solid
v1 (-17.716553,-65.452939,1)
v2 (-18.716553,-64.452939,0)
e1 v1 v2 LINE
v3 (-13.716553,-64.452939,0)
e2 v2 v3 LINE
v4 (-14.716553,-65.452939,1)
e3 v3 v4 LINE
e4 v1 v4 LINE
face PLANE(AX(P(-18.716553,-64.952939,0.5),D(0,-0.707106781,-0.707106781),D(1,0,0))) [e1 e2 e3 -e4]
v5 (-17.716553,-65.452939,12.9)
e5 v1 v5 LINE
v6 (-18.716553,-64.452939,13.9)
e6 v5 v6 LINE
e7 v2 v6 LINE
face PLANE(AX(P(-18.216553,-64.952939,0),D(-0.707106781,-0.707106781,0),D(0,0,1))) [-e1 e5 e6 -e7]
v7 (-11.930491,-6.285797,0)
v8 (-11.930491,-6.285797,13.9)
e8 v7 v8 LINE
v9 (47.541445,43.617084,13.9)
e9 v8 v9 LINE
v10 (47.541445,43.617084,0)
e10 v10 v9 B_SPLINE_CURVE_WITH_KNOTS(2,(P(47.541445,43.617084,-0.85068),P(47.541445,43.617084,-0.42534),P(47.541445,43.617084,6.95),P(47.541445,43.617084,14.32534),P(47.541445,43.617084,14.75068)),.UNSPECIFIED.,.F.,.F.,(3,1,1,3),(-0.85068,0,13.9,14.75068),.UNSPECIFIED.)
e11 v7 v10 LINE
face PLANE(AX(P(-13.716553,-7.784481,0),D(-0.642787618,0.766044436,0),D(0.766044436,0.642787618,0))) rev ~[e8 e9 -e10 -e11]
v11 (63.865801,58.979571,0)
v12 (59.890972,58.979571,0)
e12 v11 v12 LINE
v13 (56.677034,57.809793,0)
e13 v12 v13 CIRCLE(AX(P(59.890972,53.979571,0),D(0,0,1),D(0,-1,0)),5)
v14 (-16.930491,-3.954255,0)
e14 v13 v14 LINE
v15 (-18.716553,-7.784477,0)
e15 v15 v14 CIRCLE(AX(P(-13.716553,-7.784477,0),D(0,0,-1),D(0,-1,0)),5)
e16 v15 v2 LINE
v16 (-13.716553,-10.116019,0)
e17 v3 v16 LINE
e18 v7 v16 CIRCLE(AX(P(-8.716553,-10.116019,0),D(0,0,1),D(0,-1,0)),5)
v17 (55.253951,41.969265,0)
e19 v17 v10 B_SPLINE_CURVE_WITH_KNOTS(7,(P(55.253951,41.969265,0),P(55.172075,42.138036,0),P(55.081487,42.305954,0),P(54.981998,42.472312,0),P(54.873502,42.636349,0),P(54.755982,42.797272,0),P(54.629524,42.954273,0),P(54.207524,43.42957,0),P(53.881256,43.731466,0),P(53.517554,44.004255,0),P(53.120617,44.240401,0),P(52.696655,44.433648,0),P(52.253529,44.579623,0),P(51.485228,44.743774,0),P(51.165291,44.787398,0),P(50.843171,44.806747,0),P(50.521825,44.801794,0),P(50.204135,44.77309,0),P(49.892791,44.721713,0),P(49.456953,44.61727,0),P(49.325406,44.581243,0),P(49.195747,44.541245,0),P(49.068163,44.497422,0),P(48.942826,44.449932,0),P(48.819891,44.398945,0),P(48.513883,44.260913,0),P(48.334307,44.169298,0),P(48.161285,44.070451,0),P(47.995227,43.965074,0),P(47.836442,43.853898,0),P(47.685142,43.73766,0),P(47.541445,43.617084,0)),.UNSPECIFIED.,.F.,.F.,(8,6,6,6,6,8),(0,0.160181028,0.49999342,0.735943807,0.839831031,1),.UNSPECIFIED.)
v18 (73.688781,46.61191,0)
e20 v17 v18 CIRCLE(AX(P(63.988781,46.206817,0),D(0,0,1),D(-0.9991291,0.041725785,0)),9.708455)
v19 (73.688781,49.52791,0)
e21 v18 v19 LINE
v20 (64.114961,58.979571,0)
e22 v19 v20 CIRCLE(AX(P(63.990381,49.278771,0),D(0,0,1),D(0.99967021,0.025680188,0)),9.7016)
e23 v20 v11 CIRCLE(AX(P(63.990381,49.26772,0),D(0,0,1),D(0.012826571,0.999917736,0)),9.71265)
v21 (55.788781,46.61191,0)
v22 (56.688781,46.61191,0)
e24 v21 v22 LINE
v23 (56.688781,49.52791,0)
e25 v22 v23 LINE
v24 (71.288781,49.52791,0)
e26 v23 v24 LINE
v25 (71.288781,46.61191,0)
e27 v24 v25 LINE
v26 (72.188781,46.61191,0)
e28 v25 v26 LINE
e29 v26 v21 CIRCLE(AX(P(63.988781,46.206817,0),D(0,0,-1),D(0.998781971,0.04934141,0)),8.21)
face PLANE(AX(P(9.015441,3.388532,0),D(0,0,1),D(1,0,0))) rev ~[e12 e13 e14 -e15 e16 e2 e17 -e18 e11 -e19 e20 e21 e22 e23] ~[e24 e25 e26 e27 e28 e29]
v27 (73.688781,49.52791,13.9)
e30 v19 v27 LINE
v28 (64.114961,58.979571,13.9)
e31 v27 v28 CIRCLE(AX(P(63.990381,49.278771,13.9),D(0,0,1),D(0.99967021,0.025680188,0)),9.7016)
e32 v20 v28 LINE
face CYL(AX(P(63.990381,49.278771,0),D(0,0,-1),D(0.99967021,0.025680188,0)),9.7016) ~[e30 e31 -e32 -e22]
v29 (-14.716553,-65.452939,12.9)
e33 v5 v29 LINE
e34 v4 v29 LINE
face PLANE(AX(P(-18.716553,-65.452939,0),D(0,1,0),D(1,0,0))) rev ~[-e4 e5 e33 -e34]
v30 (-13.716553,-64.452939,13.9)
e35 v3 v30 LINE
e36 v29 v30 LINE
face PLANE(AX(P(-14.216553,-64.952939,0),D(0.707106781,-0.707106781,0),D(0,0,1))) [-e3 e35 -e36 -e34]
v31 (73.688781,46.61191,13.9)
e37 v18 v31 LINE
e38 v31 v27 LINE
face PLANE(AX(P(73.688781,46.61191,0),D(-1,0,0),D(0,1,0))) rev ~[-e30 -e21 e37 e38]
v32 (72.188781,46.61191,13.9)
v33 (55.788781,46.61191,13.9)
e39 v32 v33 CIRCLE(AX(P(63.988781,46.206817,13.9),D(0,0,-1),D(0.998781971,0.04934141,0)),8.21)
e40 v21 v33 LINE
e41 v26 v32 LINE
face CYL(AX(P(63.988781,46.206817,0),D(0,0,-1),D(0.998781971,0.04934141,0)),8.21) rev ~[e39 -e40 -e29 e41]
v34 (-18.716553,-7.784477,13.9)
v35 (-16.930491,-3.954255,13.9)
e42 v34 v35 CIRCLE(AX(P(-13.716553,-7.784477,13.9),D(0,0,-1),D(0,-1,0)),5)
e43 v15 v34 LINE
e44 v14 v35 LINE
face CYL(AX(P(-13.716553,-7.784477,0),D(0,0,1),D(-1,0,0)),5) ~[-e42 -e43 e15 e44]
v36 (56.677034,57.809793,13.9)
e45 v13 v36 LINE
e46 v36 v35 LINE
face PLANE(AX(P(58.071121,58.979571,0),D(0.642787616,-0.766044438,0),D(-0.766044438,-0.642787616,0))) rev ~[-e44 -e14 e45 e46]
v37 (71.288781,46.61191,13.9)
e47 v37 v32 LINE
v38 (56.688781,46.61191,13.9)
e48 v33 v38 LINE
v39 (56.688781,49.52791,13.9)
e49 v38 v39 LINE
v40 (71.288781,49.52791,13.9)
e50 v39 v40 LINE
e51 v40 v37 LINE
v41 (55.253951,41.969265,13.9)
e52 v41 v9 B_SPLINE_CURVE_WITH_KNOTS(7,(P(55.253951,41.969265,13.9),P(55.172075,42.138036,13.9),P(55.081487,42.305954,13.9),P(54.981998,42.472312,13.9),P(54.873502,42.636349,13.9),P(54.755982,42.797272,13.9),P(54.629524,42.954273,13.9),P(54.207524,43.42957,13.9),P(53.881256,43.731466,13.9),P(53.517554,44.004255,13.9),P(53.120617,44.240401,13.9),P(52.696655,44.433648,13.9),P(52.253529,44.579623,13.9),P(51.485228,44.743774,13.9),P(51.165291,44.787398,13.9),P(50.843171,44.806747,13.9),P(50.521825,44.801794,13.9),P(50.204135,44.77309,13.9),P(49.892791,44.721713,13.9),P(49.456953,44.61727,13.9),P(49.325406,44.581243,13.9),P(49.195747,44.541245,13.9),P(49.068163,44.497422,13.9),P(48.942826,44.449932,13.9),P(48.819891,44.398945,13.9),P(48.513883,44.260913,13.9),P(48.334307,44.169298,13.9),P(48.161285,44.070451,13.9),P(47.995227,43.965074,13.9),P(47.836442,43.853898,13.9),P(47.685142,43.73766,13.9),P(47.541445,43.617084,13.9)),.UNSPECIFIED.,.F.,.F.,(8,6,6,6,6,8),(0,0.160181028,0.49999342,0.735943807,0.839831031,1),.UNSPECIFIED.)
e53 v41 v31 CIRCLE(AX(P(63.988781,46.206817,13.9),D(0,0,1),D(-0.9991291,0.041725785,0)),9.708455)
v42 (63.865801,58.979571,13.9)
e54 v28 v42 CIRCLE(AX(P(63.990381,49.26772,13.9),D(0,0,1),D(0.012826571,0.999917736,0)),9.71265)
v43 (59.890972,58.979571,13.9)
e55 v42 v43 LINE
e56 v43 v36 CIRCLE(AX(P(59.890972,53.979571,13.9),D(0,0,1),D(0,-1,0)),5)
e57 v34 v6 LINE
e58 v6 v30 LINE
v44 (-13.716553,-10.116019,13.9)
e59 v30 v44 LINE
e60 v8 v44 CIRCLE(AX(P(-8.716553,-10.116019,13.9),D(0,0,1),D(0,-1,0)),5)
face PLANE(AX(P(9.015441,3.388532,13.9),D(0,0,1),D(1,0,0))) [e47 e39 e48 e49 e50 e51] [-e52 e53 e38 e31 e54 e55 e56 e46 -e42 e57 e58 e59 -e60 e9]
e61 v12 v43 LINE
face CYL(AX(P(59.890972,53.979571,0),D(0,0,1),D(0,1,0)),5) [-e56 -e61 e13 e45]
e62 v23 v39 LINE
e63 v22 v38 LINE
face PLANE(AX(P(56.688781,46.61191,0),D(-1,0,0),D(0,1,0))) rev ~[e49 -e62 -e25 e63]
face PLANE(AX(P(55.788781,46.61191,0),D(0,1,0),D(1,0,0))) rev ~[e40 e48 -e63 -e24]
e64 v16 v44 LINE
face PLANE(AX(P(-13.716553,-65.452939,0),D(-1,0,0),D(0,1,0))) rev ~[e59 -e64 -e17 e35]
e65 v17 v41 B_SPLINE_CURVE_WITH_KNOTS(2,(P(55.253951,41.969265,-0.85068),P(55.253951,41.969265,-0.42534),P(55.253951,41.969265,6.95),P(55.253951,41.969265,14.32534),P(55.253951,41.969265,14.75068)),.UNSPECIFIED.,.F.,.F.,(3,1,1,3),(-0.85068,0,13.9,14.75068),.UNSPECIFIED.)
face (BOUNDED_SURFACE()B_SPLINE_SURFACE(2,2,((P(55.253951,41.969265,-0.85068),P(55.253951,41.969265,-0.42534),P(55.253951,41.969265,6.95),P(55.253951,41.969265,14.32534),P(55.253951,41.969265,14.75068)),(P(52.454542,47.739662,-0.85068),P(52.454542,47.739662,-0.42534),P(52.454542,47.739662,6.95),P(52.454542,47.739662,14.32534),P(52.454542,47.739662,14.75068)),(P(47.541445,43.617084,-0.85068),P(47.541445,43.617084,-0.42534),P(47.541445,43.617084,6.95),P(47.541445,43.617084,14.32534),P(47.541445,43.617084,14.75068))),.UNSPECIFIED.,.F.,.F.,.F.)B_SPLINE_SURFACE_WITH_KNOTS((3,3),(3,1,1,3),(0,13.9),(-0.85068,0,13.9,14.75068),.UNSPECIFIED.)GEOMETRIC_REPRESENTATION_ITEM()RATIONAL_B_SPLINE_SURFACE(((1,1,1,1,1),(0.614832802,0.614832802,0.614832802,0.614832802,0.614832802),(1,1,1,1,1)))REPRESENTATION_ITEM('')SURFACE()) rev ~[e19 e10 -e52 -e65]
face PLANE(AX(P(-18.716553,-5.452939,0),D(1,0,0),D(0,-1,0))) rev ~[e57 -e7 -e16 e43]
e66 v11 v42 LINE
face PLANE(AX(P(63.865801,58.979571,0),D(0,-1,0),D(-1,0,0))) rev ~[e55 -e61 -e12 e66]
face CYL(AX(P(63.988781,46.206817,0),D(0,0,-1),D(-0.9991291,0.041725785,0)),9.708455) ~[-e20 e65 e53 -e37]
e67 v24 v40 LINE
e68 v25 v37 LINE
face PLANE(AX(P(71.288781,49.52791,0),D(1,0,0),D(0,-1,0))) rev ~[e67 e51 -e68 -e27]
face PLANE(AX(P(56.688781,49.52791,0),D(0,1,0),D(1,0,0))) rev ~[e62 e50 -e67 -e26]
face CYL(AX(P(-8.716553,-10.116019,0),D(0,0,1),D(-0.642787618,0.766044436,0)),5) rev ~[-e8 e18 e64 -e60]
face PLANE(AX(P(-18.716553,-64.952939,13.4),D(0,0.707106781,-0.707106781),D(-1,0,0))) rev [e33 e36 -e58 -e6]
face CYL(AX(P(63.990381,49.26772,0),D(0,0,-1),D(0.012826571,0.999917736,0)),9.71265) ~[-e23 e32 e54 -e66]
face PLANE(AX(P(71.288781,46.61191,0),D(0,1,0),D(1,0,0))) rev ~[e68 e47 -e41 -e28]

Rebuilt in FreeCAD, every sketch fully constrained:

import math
import FreeCAD as App
import Part
import Sketcher
from FreeCAD import Vector
Q = App.Units.Quantity


def edges_at(feature, points):
    """Names of the edges that pass closest to the given points."""
    edges = feature.Shape.Edges
    near = lambda p: min(range(len(edges)), key=lambda i: edges[i].distToShape(Part.Vertex(*p))[0])
    return sorted({f"Edge{near(p) + 1}" for p in points})

doc = App.newDocument("Part")
body = doc.addObject("PartDesign::Body", "Body")

# Sketch on XY plane
sketch1 = body.newObject("Sketcher::SketchObject", "Sketch")
sketch1.AttachmentSupport = (doc.getObject("XY_Plane"), [""])
sketch1.MapMode = "FlatFace"
sketch1.addGeometry([
    Part.LineSegment(Vector(-18.716553, -5.452939, 0), Vector(-18.716553, -65.452939, 0)),  # 0
    Part.LineSegment(Vector(-18.716553, -65.452939, 0), Vector(-13.716553, -65.452939, 0)),  # 1
    Part.LineSegment(Vector(-13.716553, -65.452939, 0), Vector(-13.716553, -7.784481, 0)),  # 2
    Part.LineSegment(Vector(-13.716553, -7.784481, 0), Vector(54.288781, 49.278771, 0)),  # 3
    Part.LineSegment(Vector(54.288781, 49.278771, 0), Vector(54.288781, 46.61191, 0)),  # 4
    Part.ArcOfCircle(Part.Circle(Vector(63.988781, 46.206817, 0), Vector(0, 0, 1), 9.708455), math.radians(177.608594), math.radians(362.391406)),  # 5
    Part.LineSegment(Vector(73.688781, 46.61191, 0), Vector(73.688781, 49.52791, 0)),  # 6
    Part.ArcOfCircle(Part.Circle(Vector(63.990381, 49.278771, 0), Vector(0, 0, 1), 9.7016), math.radians(1.471528), math.radians(89.264232)),  # 7
    Part.ArcOfCircle(Part.Circle(Vector(63.990381, 49.26772, 0), Vector(0, 0, 1), 9.71265), math.radians(89.265071), math.radians(90.734929)),  # 8
    Part.LineSegment(Vector(63.865801, 58.979571, 0), Vector(58.071121, 58.979571, 0)),  # 9
    Part.LineSegment(Vector(58.071121, 58.979571, 0), Vector(-18.716553, -5.452939, 0)),  # 10
    Part.LineSegment(Vector(56.688781, 46.61191, 0), Vector(56.688781, 49.52791, 0)),  # 11
    Part.LineSegment(Vector(56.688781, 49.52791, 0), Vector(71.288781, 49.52791, 0)),  # 12
    Part.LineSegment(Vector(71.288781, 49.52791, 0), Vector(71.288781, 46.61191, 0)),  # 13
    Part.LineSegment(Vector(71.288781, 46.61191, 0), Vector(72.188781, 46.61191, 0)),  # 14
    Part.ArcOfCircle(Part.Circle(Vector(63.988781, 46.206817, 0), Vector(0, 0, 1), 8.21), math.radians(177.171797), math.radians(362.828203)),  # 15
    Part.LineSegment(Vector(55.788781, 46.61191, 0), Vector(56.688781, 46.61191, 0)),  # 16
], False)
sketch1.addConstraint([
    Sketcher.Constraint("Coincident", 0, 2, 1, 1),
    Sketcher.Constraint("Coincident", 1, 2, 2, 1),
    Sketcher.Constraint("Coincident", 2, 2, 3, 1),
    Sketcher.Constraint("Coincident", 3, 2, 4, 1),
    Sketcher.Constraint("Coincident", 4, 2, 5, 1),
    Sketcher.Constraint("Coincident", 5, 2, 6, 1),
    Sketcher.Constraint("Coincident", 6, 2, 7, 1),
    Sketcher.Constraint("Coincident", 7, 2, 8, 1),
    Sketcher.Constraint("Coincident", 8, 2, 9, 1),
    Sketcher.Constraint("Coincident", 9, 2, 10, 1),
    Sketcher.Constraint("Coincident", 10, 2, 0, 1),
    Sketcher.Constraint("Coincident", 11, 2, 12, 1),
    Sketcher.Constraint("Coincident", 12, 2, 13, 1),
    Sketcher.Constraint("Coincident", 13, 2, 14, 1),
    Sketcher.Constraint("Coincident", 14, 2, 15, 2),
    Sketcher.Constraint("Coincident", 15, 1, 16, 1),
    Sketcher.Constraint("Coincident", 16, 2, 11, 1),
    Sketcher.Constraint("Vertical", 0),
    Sketcher.Constraint("Horizontal", 1),
    Sketcher.Constraint("Vertical", 2),
    Sketcher.Constraint("Vertical", 4),
    Sketcher.Constraint("Vertical", 6),
    Sketcher.Constraint("Horizontal", 9),
    Sketcher.Constraint("Vertical", 11),
    Sketcher.Constraint("Horizontal", 12),
    Sketcher.Constraint("Vertical", 13),
    Sketcher.Constraint("Horizontal", 14),
    Sketcher.Constraint("Horizontal", 16),
    Sketcher.Constraint("Coincident", 15, 3, 5, 3),
    Sketcher.Constraint("Parallel", 3, 10),
    Sketcher.Constraint("Horizontal", 7, 3, 3, 2),
    Sketcher.Constraint("Horizontal", 4, 2, 5, 2),
    Sketcher.Constraint("Horizontal", 7, 2, 8, 2),
    Sketcher.Constraint("Horizontal", 6, 2, 11, 2),
    Sketcher.Constraint("Horizontal", 5, 2, 13, 2),
    Sketcher.Constraint("Horizontal", 14, 2, 15, 1),
    Sketcher.Constraint("Vertical", 7, 3, 8, 3),
    Sketcher.Constraint("Equal", 14, 16),
    Sketcher.Constraint("DistanceX", 1, 1, 1, 2, Q("5 mm")),
    Sketcher.Constraint("DistanceY", 0, 2, 0, 1, Q("60 mm")),
    Sketcher.Constraint("Angle", 3, Q("40.000001 deg")),
    Sketcher.Constraint("Radius", 15, Q("8.21 mm")),
    Sketcher.Constraint("DistanceX", 12, 1, 12, 2, Q("14.6 mm")),
    Sketcher.Constraint("DistanceX", 14, 1, 14, 2, Q("0.9 mm")),
    Sketcher.Constraint("Radius", 7, Q("9.7016 mm")),
    Sketcher.Constraint("DistanceX", 3, 2, 5, 3, Q("9.7 mm")),
    Sketcher.Constraint("DistanceY", 6, 1, 6, 2, Q("2.916 mm")),
    Sketcher.Constraint("Radius", 8, Q("9.71265 mm")),
    Sketcher.Constraint("DistanceX", 9, 2, 9, 1, Q("5.79468 mm")),
    Sketcher.Constraint("DistanceY", 4, 2, 4, 1, Q("2.666861 mm")),
    Sketcher.Constraint("DistanceX", -1, 1, 8, 2, Q("63.865801 mm")),
    Sketcher.Constraint("DistanceY", 2, 2, 15, 3, Q("53.991298 mm")),
    Sketcher.Constraint("DistanceY", 7, 3, 7, 2, Q("9.7008 mm")),
    Sketcher.Constraint("DistanceY", -1, 1, 7, 3, Q("49.278771 mm")),
])
pad1 = body.newObject("PartDesign::Pad", "Pad")
pad1.Profile = sketch1
pad1.Length = 13.9
doc.recompute()

fillet = body.newObject("PartDesign::Fillet", "Fillet")
fillet.Base = (pad1, edges_at(pad1, [(58.071, 58.98, 6.95)]))
fillet.Radius = 5
doc.recompute()

fillet2 = body.newObject("PartDesign::Fillet", "Fillet001")
fillet2.Base = (fillet, edges_at(fillet, [(54.289, 49.279, 6.95)]))
fillet2.Radius = 5
doc.recompute()

fillet3 = body.newObject("PartDesign::Fillet", "Fillet002")
fillet3.Base = (fillet2, edges_at(fillet2, [(-13.717, -7.784, 6.95), (-18.717, -5.453, 6.95)]))
fillet3.Radius = 5
doc.recompute()

chamfer = body.newObject("PartDesign::Chamfer", "Chamfer")
chamfer.Base = (fillet3, edges_at(fillet3, [
    (-18.717, -65.453, 6.95),
    (-16.217, -65.453, 13.9),
    (-13.717, -65.453, 6.95),
    (-16.217, -65.453, 0),
]))
chamfer.Size = 1

doc.recompute()
